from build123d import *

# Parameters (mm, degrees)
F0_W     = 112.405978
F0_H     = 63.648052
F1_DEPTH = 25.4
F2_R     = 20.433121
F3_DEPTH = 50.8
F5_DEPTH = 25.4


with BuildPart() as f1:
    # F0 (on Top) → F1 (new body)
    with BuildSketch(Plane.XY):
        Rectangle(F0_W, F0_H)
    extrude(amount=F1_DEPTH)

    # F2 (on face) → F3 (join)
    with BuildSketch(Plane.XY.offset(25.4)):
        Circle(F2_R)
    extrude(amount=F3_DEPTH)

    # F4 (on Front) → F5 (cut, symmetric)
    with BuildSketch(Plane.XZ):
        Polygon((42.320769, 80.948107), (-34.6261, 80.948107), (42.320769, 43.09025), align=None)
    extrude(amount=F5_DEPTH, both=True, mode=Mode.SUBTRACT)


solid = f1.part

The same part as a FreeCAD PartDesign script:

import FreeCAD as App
import Part
import Sketcher
from FreeCAD import Vector
Q = App.Units.Quantity


def add_polygon(sketch, points):
    """Adds a closed chain of lines whose ends are joined by coincident constraints."""
    first, n = sketch.GeometryCount, len(points)
    for a, b in zip(points, points[1:] + points[:1]):
        sketch.addGeometry(Part.LineSegment(App.Vector(*a, 0), App.Vector(*b, 0)), False)
    for i in range(n):
        sketch.addConstraint(Sketcher.Constraint("Coincident", first + i, 2, first + (i + 1) % n, 1))

doc = App.newDocument("Part")
body = doc.addObject("PartDesign::Body", "Body")

# Sketch on XY plane
sketch1 = body.newObject("Sketcher::SketchObject", "Sketch")
sketch1.AttachmentSupport = (doc.getObject("XY_Plane"), [""])
sketch1.MapMode = "FlatFace"
add_polygon(sketch1, [(-56.202989, 31.824026), (-56.202989, -31.824026), (56.202989, -31.824026), (56.202989, 31.824026)])  # lines 0-3
sketch1.addConstraint(Sketcher.Constraint("Vertical", 0))
sketch1.addConstraint(Sketcher.Constraint("Horizontal", 1))
sketch1.addConstraint(Sketcher.Constraint("Vertical", 2))
sketch1.addConstraint(Sketcher.Constraint("Horizontal", 3))
sketch1.addConstraint(Sketcher.Constraint("Symmetric", 0, 2, 2, 2, -1, 1))
sketch1.addConstraint(Sketcher.Constraint("DistanceX", 1, 1, 1, 2, 112.405978))
sketch1.addConstraint(Sketcher.Constraint("DistanceY", 0, 2, 0, 1, 63.648052))
pad1 = body.newObject("PartDesign::Pad", "Pad")
pad1.Profile = sketch1
pad1.Length = Q("1 in")

# Sketch on XY plane
sketch2 = body.newObject("Sketcher::SketchObject", "Sketch001")
sketch2.AttachmentSupport = (doc.getObject("XY_Plane"), [""])
sketch2.MapMode = "FlatFace"
sketch2.AttachmentOffset = App.Placement(Vector(0, 0, 1 * 25.4), App.Rotation())
sketch2.addGeometry(Part.Circle(Vector(0, 0, 0), Vector(0, 0, 1), 20.433121), False)
sketch2.addConstraint(Sketcher.Constraint("Coincident", 0, 3, -1, 1))
sketch2.addConstraint(Sketcher.Constraint("Diameter", 0, 40.866242))
pad2 = body.newObject("PartDesign::Pad", "Pad001")
pad2.Profile = sketch2
pad2.Length = Q("2 in")

# Sketch on XZ plane
sketch3 = body.newObject("Sketcher::SketchObject", "Sketch002")
sketch3.AttachmentSupport = (doc.getObject("XZ_Plane"), [""])
sketch3.MapMode = "FlatFace"
add_polygon(sketch3, [(42.320769, 80.948107), (-34.6261, 80.948107), (42.320769, 43.09025)])  # lines 0-2
sketch3.addConstraint(Sketcher.Constraint("Horizontal", 0))
sketch3.addConstraint(Sketcher.Constraint("Vertical", 2))
sketch3.addConstraint(Sketcher.Constraint("DistanceX", 0, 2, 0, 1, 76.946869))
sketch3.addConstraint(Sketcher.Constraint("DistanceX", 0, 2, -1, 1, 34.6261))
sketch3.addConstraint(Sketcher.Constraint("DistanceY", 2, 1, 2, 2, 37.857857))
sketch3.addConstraint(Sketcher.Constraint("DistanceY", -1, 1, 1, 2, 43.09025))
pocket1 = body.newObject("PartDesign::Pocket", "Pocket")
pocket1.Profile = sketch3
pocket1.Length = Q("2 in")
pocket1.Midplane = True

doc.recompute()
